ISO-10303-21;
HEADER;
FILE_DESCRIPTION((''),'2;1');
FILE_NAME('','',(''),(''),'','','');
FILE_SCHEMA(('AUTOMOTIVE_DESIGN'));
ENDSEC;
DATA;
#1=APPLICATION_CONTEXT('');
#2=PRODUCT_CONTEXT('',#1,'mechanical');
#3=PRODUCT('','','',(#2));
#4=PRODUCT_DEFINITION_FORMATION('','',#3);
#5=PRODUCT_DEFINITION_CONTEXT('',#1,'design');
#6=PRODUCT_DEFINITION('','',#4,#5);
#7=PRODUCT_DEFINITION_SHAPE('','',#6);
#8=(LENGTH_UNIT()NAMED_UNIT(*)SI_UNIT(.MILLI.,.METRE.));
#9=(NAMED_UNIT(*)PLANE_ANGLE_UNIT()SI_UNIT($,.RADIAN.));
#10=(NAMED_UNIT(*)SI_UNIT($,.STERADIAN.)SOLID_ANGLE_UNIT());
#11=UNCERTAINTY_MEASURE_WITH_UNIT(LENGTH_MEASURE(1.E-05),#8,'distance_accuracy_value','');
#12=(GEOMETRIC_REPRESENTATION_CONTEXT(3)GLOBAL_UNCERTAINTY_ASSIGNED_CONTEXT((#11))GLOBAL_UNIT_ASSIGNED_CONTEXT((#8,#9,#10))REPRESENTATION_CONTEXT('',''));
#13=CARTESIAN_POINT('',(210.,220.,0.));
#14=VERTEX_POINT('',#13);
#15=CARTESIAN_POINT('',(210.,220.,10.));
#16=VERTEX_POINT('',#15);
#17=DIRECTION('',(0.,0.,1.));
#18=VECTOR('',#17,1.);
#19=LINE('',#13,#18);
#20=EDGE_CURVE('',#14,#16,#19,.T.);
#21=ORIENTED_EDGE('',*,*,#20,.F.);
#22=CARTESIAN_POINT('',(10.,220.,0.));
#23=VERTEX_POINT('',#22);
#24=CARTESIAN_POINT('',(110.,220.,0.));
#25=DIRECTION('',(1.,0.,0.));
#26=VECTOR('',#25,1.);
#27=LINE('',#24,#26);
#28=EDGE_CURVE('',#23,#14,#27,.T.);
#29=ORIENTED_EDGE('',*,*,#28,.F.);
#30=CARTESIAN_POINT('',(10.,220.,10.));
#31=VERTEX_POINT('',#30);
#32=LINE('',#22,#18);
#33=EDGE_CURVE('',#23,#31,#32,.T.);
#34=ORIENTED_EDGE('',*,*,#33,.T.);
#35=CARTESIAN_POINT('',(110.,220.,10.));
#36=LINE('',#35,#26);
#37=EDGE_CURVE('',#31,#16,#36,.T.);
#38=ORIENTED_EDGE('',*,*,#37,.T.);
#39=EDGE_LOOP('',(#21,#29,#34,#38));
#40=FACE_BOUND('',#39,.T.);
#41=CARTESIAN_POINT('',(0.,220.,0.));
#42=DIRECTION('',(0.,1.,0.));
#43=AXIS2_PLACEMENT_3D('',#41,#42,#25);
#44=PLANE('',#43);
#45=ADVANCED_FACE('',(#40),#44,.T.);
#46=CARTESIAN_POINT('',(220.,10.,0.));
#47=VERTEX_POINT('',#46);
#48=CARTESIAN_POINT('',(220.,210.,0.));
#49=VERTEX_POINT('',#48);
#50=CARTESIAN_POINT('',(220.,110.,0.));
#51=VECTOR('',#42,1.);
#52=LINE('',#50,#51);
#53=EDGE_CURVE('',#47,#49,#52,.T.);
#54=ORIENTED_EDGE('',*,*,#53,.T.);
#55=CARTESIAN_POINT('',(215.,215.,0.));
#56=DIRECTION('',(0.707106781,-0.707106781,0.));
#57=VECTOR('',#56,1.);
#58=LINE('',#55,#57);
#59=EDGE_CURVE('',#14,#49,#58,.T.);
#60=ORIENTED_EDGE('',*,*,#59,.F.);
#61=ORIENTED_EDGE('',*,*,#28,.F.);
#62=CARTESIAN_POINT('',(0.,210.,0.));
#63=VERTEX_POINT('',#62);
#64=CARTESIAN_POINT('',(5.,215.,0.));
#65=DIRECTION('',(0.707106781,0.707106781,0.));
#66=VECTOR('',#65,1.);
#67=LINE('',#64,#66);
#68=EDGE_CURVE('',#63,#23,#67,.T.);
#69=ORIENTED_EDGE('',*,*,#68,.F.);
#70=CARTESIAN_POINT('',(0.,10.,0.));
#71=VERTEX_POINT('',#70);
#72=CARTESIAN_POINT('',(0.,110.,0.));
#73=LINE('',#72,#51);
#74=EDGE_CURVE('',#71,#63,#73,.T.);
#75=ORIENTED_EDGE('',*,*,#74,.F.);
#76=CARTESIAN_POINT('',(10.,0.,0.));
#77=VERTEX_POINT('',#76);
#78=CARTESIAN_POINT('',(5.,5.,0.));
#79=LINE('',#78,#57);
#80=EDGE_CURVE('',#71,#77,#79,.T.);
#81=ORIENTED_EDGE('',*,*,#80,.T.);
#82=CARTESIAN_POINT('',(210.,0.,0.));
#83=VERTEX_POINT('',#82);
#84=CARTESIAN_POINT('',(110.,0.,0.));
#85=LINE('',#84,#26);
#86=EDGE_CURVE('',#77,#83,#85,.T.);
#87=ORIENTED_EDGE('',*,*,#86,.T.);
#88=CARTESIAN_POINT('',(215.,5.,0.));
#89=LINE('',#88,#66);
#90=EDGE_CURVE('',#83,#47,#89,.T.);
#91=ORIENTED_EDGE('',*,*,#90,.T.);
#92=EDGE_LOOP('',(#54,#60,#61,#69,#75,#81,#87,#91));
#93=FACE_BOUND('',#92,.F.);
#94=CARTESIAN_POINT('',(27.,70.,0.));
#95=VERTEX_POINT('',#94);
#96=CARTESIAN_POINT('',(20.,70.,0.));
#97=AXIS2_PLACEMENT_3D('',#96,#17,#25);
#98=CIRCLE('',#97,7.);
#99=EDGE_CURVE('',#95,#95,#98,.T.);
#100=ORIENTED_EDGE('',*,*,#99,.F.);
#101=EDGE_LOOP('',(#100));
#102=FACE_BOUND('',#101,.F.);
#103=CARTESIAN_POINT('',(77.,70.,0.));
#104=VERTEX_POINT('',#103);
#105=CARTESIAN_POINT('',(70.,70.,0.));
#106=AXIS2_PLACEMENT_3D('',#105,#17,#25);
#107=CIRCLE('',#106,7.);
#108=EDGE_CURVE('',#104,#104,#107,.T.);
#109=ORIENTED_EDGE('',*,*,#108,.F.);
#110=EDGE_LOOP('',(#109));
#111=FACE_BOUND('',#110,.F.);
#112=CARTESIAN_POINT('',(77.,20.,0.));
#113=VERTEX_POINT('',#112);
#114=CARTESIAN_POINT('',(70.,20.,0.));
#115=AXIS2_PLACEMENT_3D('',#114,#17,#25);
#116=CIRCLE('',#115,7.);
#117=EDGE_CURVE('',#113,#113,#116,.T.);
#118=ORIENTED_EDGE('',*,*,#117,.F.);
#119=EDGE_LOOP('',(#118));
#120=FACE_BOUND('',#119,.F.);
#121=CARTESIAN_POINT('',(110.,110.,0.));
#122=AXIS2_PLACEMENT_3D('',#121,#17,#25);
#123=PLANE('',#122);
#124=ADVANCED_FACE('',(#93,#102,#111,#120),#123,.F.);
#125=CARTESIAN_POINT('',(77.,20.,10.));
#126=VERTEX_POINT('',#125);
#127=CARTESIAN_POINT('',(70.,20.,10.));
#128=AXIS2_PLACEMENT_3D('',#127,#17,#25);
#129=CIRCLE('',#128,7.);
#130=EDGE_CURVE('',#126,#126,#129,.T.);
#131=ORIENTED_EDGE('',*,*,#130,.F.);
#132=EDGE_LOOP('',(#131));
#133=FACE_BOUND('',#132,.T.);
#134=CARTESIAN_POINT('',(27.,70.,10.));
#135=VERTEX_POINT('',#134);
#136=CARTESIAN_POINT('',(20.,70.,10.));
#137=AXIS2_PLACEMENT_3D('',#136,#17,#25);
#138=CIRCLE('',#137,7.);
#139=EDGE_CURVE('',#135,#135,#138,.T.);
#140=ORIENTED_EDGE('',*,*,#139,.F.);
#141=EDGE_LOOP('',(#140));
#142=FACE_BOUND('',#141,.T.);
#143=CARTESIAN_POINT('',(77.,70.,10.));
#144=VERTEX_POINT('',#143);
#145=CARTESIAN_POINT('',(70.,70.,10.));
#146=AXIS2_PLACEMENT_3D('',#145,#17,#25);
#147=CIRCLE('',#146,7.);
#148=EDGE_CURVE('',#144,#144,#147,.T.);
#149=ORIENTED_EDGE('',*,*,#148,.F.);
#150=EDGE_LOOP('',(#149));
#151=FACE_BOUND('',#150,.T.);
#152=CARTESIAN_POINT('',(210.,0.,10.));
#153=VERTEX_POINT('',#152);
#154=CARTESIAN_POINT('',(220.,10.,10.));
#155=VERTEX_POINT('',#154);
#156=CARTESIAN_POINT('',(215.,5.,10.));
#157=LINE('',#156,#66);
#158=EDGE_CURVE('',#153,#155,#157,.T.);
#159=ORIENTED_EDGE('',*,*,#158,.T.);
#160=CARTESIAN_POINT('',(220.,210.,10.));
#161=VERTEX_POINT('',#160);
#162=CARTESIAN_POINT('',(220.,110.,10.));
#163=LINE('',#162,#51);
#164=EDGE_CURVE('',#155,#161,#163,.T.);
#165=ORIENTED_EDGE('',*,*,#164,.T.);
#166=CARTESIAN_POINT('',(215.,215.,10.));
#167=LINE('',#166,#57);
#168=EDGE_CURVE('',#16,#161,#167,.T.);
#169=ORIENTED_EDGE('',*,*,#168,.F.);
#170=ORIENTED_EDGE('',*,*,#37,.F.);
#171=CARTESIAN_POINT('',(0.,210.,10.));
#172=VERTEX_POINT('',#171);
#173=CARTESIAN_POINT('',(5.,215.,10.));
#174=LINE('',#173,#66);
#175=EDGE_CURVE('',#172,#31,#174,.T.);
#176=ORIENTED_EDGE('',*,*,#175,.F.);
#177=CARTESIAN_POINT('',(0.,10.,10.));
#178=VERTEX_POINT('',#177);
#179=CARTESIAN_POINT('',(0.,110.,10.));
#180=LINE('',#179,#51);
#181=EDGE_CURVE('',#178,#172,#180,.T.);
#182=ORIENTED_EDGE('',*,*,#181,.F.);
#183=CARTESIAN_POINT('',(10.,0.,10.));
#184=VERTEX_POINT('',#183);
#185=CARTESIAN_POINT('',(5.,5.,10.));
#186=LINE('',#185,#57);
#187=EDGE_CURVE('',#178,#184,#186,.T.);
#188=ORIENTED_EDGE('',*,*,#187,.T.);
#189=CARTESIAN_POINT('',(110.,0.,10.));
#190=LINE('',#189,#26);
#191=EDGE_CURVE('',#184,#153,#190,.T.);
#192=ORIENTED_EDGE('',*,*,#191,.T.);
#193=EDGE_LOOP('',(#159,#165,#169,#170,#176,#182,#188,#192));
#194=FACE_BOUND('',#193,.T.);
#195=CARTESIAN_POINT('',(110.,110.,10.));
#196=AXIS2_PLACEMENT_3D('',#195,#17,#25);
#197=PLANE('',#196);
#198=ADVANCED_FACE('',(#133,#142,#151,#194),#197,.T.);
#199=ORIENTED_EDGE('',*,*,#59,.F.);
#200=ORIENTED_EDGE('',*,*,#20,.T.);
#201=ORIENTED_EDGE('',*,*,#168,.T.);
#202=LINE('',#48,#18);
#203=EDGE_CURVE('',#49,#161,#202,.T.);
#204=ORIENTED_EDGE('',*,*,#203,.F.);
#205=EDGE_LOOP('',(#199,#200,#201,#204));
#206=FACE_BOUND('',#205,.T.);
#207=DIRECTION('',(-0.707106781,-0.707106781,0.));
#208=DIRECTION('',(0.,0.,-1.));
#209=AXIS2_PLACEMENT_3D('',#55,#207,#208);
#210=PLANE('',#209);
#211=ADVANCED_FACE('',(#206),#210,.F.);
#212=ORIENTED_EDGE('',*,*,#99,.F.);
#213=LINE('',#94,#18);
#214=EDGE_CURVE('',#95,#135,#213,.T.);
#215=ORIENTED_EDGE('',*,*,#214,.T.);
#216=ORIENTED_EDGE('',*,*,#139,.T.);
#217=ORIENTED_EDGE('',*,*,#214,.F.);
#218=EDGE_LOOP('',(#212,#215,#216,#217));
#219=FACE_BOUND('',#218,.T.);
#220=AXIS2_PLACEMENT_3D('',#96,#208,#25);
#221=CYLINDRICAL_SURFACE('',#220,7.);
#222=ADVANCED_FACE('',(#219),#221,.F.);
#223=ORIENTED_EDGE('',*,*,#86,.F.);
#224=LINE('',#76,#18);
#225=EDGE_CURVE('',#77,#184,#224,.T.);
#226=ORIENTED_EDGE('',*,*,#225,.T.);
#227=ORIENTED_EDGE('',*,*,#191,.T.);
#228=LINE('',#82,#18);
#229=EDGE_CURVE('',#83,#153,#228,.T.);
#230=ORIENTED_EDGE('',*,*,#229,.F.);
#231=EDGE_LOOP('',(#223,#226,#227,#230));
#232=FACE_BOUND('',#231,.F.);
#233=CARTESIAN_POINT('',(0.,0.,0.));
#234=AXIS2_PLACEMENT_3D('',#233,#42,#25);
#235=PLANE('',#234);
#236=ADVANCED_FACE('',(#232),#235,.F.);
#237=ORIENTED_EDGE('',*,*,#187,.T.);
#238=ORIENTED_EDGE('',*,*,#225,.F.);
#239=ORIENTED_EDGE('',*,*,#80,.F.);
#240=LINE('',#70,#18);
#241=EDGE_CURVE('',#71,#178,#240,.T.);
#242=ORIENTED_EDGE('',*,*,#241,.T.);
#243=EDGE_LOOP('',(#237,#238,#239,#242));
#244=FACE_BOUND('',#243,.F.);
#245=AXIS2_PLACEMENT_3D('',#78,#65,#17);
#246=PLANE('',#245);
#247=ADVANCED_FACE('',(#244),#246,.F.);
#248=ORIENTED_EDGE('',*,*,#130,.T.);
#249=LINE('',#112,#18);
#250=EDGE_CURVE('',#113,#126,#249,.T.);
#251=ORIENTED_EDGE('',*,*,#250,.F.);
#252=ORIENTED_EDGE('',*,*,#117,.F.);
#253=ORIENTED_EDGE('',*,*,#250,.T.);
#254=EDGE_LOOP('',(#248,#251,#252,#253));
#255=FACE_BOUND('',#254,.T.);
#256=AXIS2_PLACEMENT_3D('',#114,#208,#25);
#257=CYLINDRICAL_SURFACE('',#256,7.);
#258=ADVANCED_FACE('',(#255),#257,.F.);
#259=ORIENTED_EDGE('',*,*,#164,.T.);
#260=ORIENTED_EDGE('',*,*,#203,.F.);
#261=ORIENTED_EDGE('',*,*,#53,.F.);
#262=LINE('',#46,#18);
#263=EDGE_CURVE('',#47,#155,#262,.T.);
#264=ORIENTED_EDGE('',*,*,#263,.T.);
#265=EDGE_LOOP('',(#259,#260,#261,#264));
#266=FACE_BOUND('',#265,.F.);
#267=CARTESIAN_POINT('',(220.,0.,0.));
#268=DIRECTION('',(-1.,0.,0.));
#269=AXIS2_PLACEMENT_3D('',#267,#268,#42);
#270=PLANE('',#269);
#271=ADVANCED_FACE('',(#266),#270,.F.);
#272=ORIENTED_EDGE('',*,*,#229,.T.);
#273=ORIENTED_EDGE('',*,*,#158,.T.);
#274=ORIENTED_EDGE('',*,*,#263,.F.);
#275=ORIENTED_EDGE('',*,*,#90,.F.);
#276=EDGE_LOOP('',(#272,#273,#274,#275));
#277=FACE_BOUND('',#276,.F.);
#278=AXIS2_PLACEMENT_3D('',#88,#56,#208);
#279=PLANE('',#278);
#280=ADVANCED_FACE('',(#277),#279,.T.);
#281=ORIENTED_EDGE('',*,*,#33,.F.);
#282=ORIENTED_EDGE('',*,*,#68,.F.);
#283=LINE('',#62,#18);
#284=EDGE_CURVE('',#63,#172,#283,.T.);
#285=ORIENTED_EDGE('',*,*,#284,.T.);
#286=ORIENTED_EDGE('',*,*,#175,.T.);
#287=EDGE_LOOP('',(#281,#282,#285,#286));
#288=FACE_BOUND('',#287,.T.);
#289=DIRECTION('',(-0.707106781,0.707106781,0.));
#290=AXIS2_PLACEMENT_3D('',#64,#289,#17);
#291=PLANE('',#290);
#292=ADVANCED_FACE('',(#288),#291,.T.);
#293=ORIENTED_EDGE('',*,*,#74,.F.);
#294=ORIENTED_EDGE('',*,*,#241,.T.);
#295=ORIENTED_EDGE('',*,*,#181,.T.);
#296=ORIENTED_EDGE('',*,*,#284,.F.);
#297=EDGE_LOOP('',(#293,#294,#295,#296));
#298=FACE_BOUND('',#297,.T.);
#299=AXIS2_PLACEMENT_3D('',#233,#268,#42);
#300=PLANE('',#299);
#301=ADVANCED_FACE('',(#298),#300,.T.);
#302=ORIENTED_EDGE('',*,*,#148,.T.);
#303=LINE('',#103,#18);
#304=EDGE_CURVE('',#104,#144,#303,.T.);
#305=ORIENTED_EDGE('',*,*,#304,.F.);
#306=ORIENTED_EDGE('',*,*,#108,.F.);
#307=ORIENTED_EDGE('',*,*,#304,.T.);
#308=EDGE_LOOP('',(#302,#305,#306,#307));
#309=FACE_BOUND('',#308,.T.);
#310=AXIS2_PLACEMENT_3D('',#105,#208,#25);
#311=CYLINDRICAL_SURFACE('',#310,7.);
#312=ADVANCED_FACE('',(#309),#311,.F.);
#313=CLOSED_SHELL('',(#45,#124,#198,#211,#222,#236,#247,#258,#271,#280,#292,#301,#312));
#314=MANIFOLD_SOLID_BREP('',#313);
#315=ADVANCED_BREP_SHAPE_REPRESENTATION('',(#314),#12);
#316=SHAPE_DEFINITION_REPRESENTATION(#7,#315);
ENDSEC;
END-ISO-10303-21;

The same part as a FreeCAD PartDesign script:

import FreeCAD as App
import Part
import Sketcher
Q = App.Units.Quantity


def edges_at(feature, points):
    """Names of the edges that pass closest to the given points."""
    edges = feature.Shape.Edges
    near = lambda p: min(range(len(edges)), key=lambda i: edges[i].distToShape(Part.Vertex(*p))[0])
    return sorted({f"Edge{near(p) + 1}" for p in points})

doc = App.newDocument("Part")
body = doc.addObject("PartDesign::Body", "Body")

# Sketch on XY plane
sketch1 = doc.addObject("Sketcher::SketchObject", "Sketch")
body.addObject(sketch1)
sketch1.AttachmentSupport = (doc.XY_Plane, [""])
sketch1.MapMode = "FlatFace"
sketch1.addGeometry(Part.LineSegment(App.Vector(0, 220, 0), App.Vector(0, 0, 0)), False)
sketch1.addGeometry(Part.LineSegment(App.Vector(0, 0, 0), App.Vector(220, 0, 0)), False)
sketch1.addGeometry(Part.LineSegment(App.Vector(220, 0, 0), App.Vector(220, 220, 0)), False)
sketch1.addGeometry(Part.LineSegment(App.Vector(220, 220, 0), App.Vector(0, 220, 0)), False)
sketch1.addGeometry(Part.Circle(App.Vector(70, 20, 0), App.Vector(0, 0, 1), 7), False)
sketch1.addGeometry(Part.Circle(App.Vector(20, 70, 0), App.Vector(0, 0, 1), 7), False)
sketch1.addGeometry(Part.Circle(App.Vector(70, 70, 0), App.Vector(0, 0, 1), 7), False)
sketch1.addConstraint(Sketcher.Constraint("Coincident", 0, 2, 1, 1))
sketch1.addConstraint(Sketcher.Constraint("Coincident", 1, 2, 2, 1))
sketch1.addConstraint(Sketcher.Constraint("Coincident", 2, 2, 3, 1))
sketch1.addConstraint(Sketcher.Constraint("Coincident", 3, 2, 0, 1))
sketch1.addConstraint(Sketcher.Constraint("Vertical", 0))
sketch1.addConstraint(Sketcher.Constraint("Horizontal", 1))
sketch1.addConstraint(Sketcher.Constraint("Vertical", 2))
sketch1.addConstraint(Sketcher.Constraint("Horizontal", 3))
sketch1.addConstraint(Sketcher.Constraint("Coincident", 0, 2, -1, 1))
sketch1.addConstraint(Sketcher.Constraint("Equal", 4, 5))
sketch1.addConstraint(Sketcher.Constraint("Equal", 5, 6))
sketch1.addConstraint(Sketcher.Constraint("Horizontal", 5, 3, 6, 3))
sketch1.addConstraint(Sketcher.Constraint("Vertical", 4, 3, 6, 3))
sketch1.addConstraint(Sketcher.Constraint("Equal", 3, 0))
sketch1.addConstraint(Sketcher.Constraint("Diameter", 4, Q("14 mm")))
sketch1.addConstraint(Sketcher.Constraint("DistanceX", 1, 1, 1, 2, Q("220 mm")))
sketch1.addConstraint(Sketcher.Constraint("DistanceX", -1, 1, 4, 3, Q("70 mm")))
sketch1.addConstraint(Sketcher.Constraint("DistanceY", -1, 1, 4, 3, Q("20 mm")))
sketch1.addConstraint(Sketcher.Constraint("DistanceX", -1, 1, 5, 3, Q("20 mm")))
sketch1.addConstraint(Sketcher.Constraint("DistanceY", -1, 1, 5, 3, Q("70 mm")))
pad1 = doc.addObject("PartDesign::Pad", "Pad")
body.addObject(pad1)
pad1.Profile = sketch1
pad1.Length = 10
doc.recompute()

chamfer = doc.addObject("PartDesign::Chamfer", "Chamfer")
body.addObject(chamfer)
chamfer.Base = (pad1, edges_at(pad1, [
    (0, 220, 5),
    (0, 0, 5),
    (220, 0, 5),
    (220, 220, 5),
]))
chamfer.Size = 10

doc.recompute()
